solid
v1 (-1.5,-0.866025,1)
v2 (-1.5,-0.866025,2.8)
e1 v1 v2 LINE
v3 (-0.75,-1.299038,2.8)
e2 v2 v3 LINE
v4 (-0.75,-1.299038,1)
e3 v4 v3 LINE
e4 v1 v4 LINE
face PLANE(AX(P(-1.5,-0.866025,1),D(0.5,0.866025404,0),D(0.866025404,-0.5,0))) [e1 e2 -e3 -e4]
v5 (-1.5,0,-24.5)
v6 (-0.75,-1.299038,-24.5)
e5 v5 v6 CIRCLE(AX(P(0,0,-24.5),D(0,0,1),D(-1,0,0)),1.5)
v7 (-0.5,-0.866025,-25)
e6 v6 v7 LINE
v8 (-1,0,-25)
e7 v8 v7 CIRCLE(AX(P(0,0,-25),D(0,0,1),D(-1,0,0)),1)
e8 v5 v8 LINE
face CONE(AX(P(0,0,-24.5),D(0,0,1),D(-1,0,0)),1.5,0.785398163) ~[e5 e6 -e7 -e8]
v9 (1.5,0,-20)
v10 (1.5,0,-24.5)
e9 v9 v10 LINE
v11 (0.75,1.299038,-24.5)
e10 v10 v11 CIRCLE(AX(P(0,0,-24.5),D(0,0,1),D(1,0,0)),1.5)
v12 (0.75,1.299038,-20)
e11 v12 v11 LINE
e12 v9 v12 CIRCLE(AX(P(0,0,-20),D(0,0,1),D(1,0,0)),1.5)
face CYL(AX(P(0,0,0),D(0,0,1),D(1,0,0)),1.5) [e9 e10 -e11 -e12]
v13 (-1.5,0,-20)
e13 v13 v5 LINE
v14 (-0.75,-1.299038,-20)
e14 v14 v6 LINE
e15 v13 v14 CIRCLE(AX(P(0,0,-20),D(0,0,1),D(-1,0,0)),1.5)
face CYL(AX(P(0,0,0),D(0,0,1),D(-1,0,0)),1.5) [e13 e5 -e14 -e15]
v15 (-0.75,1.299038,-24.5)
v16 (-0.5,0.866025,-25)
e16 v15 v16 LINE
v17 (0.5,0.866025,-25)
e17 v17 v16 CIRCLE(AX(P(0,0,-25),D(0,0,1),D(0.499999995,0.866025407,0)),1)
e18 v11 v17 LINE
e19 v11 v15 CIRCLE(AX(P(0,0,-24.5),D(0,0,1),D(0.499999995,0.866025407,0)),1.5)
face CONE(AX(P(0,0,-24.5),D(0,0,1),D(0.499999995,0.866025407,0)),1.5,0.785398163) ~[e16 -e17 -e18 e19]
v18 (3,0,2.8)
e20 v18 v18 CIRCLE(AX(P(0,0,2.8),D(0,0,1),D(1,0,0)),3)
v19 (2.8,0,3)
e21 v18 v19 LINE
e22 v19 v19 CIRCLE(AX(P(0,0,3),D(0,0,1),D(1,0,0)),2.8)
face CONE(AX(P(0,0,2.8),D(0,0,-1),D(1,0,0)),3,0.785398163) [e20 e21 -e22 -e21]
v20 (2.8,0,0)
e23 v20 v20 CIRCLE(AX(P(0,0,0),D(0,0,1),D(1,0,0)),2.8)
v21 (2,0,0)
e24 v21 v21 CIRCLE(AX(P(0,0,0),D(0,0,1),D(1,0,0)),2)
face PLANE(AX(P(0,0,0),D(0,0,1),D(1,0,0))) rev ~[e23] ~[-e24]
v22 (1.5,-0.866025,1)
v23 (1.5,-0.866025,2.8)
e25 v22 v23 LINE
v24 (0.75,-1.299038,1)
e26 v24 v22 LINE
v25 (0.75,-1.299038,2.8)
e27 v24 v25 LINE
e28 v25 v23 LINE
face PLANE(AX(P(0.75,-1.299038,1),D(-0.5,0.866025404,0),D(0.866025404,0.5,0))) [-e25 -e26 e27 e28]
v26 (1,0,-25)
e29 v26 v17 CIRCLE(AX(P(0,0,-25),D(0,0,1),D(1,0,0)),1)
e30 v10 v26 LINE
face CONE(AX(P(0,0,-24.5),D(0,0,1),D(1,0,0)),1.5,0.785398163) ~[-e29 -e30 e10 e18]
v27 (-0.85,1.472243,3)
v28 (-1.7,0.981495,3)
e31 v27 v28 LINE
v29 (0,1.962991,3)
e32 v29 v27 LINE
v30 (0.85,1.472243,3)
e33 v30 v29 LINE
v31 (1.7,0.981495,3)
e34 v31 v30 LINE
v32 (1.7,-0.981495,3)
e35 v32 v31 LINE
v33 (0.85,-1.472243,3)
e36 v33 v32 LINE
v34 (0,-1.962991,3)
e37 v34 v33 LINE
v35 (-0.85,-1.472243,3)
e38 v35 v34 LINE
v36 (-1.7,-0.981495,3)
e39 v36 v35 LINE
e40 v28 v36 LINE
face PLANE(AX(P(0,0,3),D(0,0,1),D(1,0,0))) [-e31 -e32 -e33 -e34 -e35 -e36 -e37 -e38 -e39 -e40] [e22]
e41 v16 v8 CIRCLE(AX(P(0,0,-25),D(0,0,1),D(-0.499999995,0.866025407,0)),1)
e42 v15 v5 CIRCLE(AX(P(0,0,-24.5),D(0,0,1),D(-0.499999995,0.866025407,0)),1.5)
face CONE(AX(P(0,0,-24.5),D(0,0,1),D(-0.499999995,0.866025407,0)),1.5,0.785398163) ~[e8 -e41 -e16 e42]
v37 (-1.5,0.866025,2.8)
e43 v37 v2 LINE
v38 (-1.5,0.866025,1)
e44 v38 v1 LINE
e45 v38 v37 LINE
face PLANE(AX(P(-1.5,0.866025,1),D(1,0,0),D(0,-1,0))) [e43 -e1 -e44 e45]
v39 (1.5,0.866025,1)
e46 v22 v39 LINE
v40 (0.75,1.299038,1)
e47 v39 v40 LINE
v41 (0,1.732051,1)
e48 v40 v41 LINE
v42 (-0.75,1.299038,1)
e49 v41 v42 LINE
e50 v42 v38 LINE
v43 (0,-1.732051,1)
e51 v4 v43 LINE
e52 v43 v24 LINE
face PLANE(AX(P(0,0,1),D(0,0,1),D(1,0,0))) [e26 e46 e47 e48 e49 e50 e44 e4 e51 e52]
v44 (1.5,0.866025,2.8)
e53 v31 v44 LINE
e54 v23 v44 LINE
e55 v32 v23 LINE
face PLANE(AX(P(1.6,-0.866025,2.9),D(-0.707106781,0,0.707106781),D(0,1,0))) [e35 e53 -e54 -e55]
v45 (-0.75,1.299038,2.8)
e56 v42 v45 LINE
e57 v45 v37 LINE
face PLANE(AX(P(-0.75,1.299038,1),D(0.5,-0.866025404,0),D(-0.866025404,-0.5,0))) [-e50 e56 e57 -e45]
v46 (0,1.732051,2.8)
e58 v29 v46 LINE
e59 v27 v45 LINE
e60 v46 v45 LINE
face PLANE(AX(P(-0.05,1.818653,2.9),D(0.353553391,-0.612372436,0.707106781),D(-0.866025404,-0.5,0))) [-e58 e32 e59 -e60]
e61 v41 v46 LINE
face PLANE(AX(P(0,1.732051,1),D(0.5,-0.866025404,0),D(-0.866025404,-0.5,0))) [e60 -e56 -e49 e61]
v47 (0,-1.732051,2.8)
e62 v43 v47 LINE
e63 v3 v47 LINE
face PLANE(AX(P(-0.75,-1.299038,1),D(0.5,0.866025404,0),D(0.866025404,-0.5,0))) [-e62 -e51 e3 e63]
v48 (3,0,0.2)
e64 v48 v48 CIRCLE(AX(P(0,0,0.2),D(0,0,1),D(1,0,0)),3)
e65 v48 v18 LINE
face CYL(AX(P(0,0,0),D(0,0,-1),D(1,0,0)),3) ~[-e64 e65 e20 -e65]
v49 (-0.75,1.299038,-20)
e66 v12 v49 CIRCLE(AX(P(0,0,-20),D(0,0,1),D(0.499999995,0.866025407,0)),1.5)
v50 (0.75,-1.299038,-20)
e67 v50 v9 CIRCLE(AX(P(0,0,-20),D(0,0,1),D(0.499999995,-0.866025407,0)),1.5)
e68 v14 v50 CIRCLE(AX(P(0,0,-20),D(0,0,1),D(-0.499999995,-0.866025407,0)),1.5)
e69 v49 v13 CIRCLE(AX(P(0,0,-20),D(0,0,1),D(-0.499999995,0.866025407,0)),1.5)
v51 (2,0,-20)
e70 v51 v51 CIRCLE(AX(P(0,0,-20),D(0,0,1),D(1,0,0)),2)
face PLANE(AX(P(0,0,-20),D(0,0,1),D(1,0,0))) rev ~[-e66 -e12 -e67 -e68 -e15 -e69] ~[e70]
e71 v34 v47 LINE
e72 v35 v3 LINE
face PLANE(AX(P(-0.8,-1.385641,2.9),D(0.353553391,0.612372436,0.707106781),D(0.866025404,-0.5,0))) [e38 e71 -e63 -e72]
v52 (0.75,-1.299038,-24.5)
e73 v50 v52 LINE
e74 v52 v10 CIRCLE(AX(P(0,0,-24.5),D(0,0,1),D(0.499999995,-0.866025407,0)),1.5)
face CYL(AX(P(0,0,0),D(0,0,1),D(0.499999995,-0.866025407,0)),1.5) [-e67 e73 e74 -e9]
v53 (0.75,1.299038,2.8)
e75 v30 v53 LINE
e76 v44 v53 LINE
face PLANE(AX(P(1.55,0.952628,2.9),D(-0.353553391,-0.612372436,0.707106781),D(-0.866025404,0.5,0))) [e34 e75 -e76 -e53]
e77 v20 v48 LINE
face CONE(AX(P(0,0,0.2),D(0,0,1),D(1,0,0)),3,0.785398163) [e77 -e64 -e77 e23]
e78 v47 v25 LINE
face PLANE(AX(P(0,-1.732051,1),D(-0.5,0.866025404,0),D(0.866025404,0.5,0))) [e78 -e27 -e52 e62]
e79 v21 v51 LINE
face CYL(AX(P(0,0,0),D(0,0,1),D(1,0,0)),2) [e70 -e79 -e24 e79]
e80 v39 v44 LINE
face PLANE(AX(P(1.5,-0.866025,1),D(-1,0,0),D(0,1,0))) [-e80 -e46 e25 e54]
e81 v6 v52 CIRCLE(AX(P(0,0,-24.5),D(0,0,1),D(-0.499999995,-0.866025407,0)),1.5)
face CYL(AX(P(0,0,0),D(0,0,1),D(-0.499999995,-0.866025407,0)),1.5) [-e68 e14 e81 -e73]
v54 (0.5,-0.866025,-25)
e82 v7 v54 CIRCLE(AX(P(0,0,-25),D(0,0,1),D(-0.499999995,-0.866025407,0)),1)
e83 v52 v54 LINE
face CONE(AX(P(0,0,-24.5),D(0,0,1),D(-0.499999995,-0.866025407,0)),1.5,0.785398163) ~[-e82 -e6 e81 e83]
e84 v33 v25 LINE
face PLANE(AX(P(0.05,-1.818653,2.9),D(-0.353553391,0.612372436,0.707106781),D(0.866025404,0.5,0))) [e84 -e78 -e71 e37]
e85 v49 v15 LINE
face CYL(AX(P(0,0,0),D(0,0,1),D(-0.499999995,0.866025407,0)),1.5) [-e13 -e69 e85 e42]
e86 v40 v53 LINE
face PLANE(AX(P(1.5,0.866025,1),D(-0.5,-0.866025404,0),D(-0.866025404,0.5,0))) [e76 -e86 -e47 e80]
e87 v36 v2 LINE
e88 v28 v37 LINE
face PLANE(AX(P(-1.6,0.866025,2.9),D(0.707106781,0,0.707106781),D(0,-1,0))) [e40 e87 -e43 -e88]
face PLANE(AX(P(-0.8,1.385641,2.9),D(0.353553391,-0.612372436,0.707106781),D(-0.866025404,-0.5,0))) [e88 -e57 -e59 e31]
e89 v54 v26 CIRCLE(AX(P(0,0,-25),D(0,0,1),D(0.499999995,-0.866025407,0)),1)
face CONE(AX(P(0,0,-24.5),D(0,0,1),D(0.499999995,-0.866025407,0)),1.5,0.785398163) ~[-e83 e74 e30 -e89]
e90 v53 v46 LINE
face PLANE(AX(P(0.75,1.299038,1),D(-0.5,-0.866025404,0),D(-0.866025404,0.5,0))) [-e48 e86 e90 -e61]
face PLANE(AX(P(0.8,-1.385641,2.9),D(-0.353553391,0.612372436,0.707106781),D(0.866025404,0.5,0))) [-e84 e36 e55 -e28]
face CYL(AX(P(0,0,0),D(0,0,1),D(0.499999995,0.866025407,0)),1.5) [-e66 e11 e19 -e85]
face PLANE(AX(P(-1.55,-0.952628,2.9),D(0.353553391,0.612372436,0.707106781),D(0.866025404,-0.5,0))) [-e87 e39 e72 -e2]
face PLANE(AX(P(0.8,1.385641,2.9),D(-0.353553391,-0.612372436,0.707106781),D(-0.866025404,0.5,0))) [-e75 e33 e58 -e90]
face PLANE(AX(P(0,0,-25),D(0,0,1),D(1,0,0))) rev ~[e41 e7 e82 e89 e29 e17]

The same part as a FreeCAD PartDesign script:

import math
import FreeCAD as App
import Part
import Sketcher
from FreeCAD import Vector
Q = App.Units.Quantity


def edges_at(feature, points):
    """Names of the edges that pass closest to the given points."""
    edges = feature.Shape.Edges
    near = lambda p: min(range(len(edges)), key=lambda i: edges[i].distToShape(Part.Vertex(*p))[0])
    return sorted({f"Edge{near(p) + 1}" for p in points})

doc = App.newDocument("Part")
body = doc.addObject("PartDesign::Body", "Body")

sketch1 = body.newObject("Sketcher::SketchObject", "Sketch")
sketch1.AttachmentSupport = (doc.getObject("XY_Plane"), [""])
sketch1.MapMode = "FlatFace"
sketch1.addGeometry(Part.Circle(Vector(0, 0, 0), Vector(0, 0, 1), 3), False)
sketch1.addConstraint([
    Sketcher.Constraint("Coincident", 0, 3, -1, 1),
    Sketcher.Constraint("Diameter", 0, Q("6 mm")),
])
pad1 = body.newObject("PartDesign::Pad", "Pad")
pad1.Profile = sketch1
pad1.Length = 3

sketch2 = body.newObject("Sketcher::SketchObject", "Sketch001")
sketch2.AttachmentSupport = (doc.getObject("XY_Plane"), [""])
sketch2.MapMode = "FlatFace"
sketch2.addGeometry(Part.Circle(Vector(0, 0, 0), Vector(0, 0, 1), 2), False)
sketch2.addConstraint([
    Sketcher.Constraint("Coincident", 0, 3, -1, 1),
    Sketcher.Constraint("Diameter", 0, Q("4 mm")),
])
pad2 = body.newObject("PartDesign::Pad", "Pad001")
pad2.Profile = sketch2
pad2.Length = 20
pad2.Reversed = True

sketch3 = body.newObject("Sketcher::SketchObject", "Sketch002")
sketch3.AttachmentSupport = (doc.getObject("XY_Plane"), [""])
sketch3.MapMode = "FlatFace"
sketch3.addGeometry([
    Part.ArcOfCircle(Part.Circle(Vector(0, 0, 0), Vector(0, 0, 1), 1.5), math.radians(-60), math.radians(0)),
    Part.ArcOfCircle(Part.Circle(Vector(0, 0, 0), Vector(0, 0, 1), 1.5), math.radians(0), math.radians(60)),
    Part.ArcOfCircle(Part.Circle(Vector(0, 0, 0), Vector(0, 0, 1), 1.5), math.radians(60), math.radians(120)),
    Part.ArcOfCircle(Part.Circle(Vector(0, 0, 0), Vector(0, 0, 1), 1.5), math.radians(120), math.radians(180)),
    Part.ArcOfCircle(Part.Circle(Vector(0, 0, 0), Vector(0, 0, 1), 1.5), math.radians(180), math.radians(240)),
    Part.ArcOfCircle(Part.Circle(Vector(0, 0, 0), Vector(0, 0, 1), 1.5), math.radians(-120), math.radians(-60)),
], False)
sketch3.addConstraint([
    Sketcher.Constraint("Tangent", 0, 2, 1, 1),
    Sketcher.Constraint("Tangent", 1, 2, 2, 1),
    Sketcher.Constraint("Tangent", 2, 2, 3, 1),
    Sketcher.Constraint("Tangent", 3, 2, 4, 1),
    Sketcher.Constraint("Tangent", 4, 2, 5, 1),
    Sketcher.Constraint("Tangent", 5, 2, 0, 1),
    Sketcher.Constraint("Coincident", 0, 3, -1, 1),
    Sketcher.Constraint("Coincident", 2, 3, -1, 1),
    Sketcher.Constraint("Equal", 2, 3),
    Sketcher.Constraint("PointOnObject", 0, 2, -1),
    Sketcher.Constraint("PointOnObject", 3, 2, -1),
    Sketcher.Constraint("Horizontal", 1, 2, 2, 2),
    Sketcher.Constraint("Horizontal", 4, 2, 5, 2),
    Sketcher.Constraint("Vertical", 2, 2, 4, 2),
    Sketcher.Constraint("Radius", 0, Q("1.5 mm")),
    Sketcher.Constraint("DistanceX", 2, 2, 1, 2, Q("1.5 mm")),
])
pad3 = body.newObject("PartDesign::Pad", "Pad002")
pad3.Profile = sketch3
pad3.Length = 25
pad3.Reversed = True

sketch4 = body.newObject("Sketcher::SketchObject", "Sketch003")
sketch4.AttachmentSupport = (doc.getObject("XY_Plane"), [""])
sketch4.MapMode = "FlatFace"
sketch4.AttachmentOffset = App.Placement(Vector(0, 0, 1), App.Rotation())
sketch4.addGeometry([
    Part.LineSegment(Vector(1.5, 0.9, 0), Vector(0.7, 1.3, 0)),
    Part.LineSegment(Vector(0.7, 1.3, 0), Vector(0, 1.7, 0)),
    Part.LineSegment(Vector(0, 1.7, 0), Vector(-0.7, 1.3, 0)),
    Part.LineSegment(Vector(-0.7, 1.3, 0), Vector(-1.5, 0.9, 0)),
    Part.LineSegment(Vector(-1.5, 0.9, 0), Vector(-1.5, -0.9, 0)),
    Part.LineSegment(Vector(-1.5, -0.9, 0), Vector(-0.7, -1.3, 0)),
    Part.LineSegment(Vector(-0.7, -1.3, 0), Vector(0, -1.7, 0)),
    Part.LineSegment(Vector(0, -1.7, 0), Vector(0.7, -1.3, 0)),
    Part.LineSegment(Vector(0.7, -1.3, 0), Vector(1.5, -0.9, 0)),
    Part.LineSegment(Vector(1.5, -0.9, 0), Vector(1.5, 0.9, 0)),
], False)
sketch4.addConstraint([
    Sketcher.Constraint("Coincident", 0, 2, 1, 1),
    Sketcher.Constraint("Coincident", 1, 2, 2, 1),
    Sketcher.Constraint("Coincident", 2, 2, 3, 1),
    Sketcher.Constraint("Coincident", 3, 2, 4, 1),
    Sketcher.Constraint("Coincident", 4, 2, 5, 1),
    Sketcher.Constraint("Coincident", 5, 2, 6, 1),
    Sketcher.Constraint("Coincident", 6, 2, 7, 1),
    Sketcher.Constraint("Coincident", 7, 2, 8, 1),
    Sketcher.Constraint("Coincident", 8, 2, 9, 1),
    Sketcher.Constraint("Coincident", 9, 2, 0, 1),
    Sketcher.Constraint("Vertical", 4),
    Sketcher.Constraint("Vertical", 9),
    Sketcher.Constraint("Symmetric", 0, 2, 5, 2, -1, 1),
    Sketcher.Constraint("Symmetric", 1, 2, 6, 2, -1, 1),
    Sketcher.Constraint("Symmetric", 2, 2, 7, 2, -1, 1),
    Sketcher.Constraint("Symmetric", 3, 2, 8, 2, -1, 1),
    Sketcher.Constraint("Symmetric", 0, 2, 2, 2, -2),
    Sketcher.Constraint("PointOnObject", 1, 2, -2),
    Sketcher.Constraint("Parallel", 0, 1),
    Sketcher.Constraint("Parallel", 2, 3),
    Sketcher.Constraint("Parallel", 1, 5),
    Sketcher.Constraint("Equal", 0, 1),
    Sketcher.Constraint("Angle", 0, Q("150 deg")),
    Sketcher.Constraint("DistanceX", 4, 2, 8, 2, Q("3 mm")),
    Sketcher.Constraint("DistanceY", 4, 2, 4, 1, Q("1.732051 mm")),
])
pocket1 = body.newObject("PartDesign::Pocket", "Pocket")
pocket1.Profile = sketch4
pocket1.Length = 2
pocket1.Reversed = True
doc.recompute()

chamfer = body.newObject("PartDesign::Chamfer", "Chamfer")
chamfer.Base = (pocket1, edges_at(pocket1, [
    (-3, 0, 3),
    (-1.125, 1.083, 3),
    (1.125, 1.083, 3),
    (1.5, 0, 3),
    (1.125, -1.083, 3),
    (-1.5, 0, 3),
    (-1.125, -1.083, 3),
    (-3, 0, 0),
]))
chamfer.Size = 0.2
doc.recompute()

chamfer2 = body.newObject("PartDesign::Chamfer", "Chamfer001")
chamfer2.Base = (chamfer, edges_at(chamfer, [(0, -1.5, -25)]))
chamfer2.Size = 0.5

doc.recompute()
